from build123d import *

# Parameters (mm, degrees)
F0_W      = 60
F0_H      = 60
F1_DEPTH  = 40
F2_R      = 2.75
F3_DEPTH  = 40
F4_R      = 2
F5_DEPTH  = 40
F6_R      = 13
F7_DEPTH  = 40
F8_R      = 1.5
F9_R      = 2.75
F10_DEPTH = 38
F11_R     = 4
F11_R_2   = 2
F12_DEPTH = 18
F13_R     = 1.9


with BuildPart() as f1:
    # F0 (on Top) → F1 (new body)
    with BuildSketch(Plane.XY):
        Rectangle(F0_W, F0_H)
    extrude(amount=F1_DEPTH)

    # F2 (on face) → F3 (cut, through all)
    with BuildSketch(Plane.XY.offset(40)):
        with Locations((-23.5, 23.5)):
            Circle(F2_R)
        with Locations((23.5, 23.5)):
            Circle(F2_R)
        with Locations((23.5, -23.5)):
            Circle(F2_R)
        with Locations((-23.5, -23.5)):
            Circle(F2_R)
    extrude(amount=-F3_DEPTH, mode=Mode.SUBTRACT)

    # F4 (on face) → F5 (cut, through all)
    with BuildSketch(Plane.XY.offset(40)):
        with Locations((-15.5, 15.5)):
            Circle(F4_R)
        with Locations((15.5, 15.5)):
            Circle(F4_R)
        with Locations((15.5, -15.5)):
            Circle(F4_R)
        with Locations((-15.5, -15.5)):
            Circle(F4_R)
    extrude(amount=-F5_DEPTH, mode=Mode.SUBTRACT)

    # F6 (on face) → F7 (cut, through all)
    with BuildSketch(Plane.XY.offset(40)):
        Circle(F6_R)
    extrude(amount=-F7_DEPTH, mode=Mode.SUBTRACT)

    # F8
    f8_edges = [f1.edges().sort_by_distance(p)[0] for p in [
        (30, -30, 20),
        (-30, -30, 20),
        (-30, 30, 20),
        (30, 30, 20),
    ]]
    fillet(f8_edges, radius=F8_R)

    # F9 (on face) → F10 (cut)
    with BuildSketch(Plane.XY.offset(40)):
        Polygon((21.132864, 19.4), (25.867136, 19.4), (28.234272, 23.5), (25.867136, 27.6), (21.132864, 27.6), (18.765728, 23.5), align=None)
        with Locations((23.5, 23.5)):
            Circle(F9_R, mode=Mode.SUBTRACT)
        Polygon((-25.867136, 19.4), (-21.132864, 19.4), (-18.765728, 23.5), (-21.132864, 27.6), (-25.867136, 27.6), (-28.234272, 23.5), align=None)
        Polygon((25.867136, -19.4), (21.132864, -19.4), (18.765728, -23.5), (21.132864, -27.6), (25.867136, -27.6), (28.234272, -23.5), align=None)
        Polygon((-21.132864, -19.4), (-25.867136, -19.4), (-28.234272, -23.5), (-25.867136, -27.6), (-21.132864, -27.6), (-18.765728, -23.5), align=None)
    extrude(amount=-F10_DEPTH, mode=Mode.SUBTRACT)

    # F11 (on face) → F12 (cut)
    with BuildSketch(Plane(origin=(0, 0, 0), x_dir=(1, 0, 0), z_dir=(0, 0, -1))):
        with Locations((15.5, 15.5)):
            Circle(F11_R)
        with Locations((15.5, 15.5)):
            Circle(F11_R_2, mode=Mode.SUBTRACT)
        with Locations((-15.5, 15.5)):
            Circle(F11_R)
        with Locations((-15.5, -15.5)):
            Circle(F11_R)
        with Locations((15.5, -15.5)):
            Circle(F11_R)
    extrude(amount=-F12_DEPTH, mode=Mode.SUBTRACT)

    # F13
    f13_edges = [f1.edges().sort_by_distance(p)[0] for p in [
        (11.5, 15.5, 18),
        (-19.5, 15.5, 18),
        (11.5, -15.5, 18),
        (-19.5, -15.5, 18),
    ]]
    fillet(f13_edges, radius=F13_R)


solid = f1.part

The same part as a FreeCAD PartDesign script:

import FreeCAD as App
import Part
import Sketcher
from FreeCAD import Vector
Q = App.Units.Quantity


def edges_at(feature, points):
    """Names of the edges that pass closest to the given points."""
    edges = feature.Shape.Edges
    near = lambda p: min(range(len(edges)), key=lambda i: edges[i].distToShape(Part.Vertex(*p))[0])
    return sorted({f"Edge{near(p) + 1}" for p in points})


def add_polygon(sketch, points):
    """Adds a closed chain of lines whose ends are joined by coincident constraints."""
    first, n = sketch.GeometryCount, len(points)
    for a, b in zip(points, points[1:] + points[:1]):
        sketch.addGeometry(Part.LineSegment(App.Vector(*a, 0), App.Vector(*b, 0)), False)
    for i in range(n):
        sketch.addConstraint(Sketcher.Constraint("Coincident", first + i, 2, first + (i + 1) % n, 1))

doc = App.newDocument("Part")
params = doc.addObject("Spreadsheet::Sheet", "Params")
for row, (alias, value) in enumerate([
    ("sketch1_width", "60 mm"),
    ("pad1_length", "40 mm"),
    ("sketch2_diameter", "5.5 mm"),
    ("sketch3_diameter", "4 mm"),
    ("sketch4_diameter", "26 mm"),
    ("fillet_radius", "1.5 mm"),
    ("sketch5_diameter", "5.5 mm"),
    ("pocket4_length", "38 mm"),
    ("sketch6_diameter", "8 mm"),
    ("sketch6_diameter2", "4 mm"),
    ("pocket5_length", "18 mm"),
    ("fillet2_radius", "1.9 mm"),
], start=1):
    params.set(f"A{row}", alias)
    params.set(f"B{row}", "=" + value)
    params.setAlias(f"B{row}", alias)

body = doc.addObject("PartDesign::Body", "Body")

sketch1 = doc.addObject("Sketcher::SketchObject", "Sketch")
body.addObject(sketch1)
sketch1.AttachmentSupport = (doc.XY_Plane, [""])
sketch1.MapMode = "FlatFace"
add_polygon(sketch1, [(-30, 30), (-30, -30), (30, -30), (30, 30)])
sketch1.addConstraint(Sketcher.Constraint("Vertical", 0))
sketch1.addConstraint(Sketcher.Constraint("Horizontal", 1))
sketch1.addConstraint(Sketcher.Constraint("Vertical", 2))
sketch1.addConstraint(Sketcher.Constraint("Horizontal", 3))
sketch1.addConstraint(Sketcher.Constraint("Symmetric", 0, 2, 2, 2, -1, 1))
sketch1.addConstraint(Sketcher.Constraint("Equal", 3, 0))
sketch1.addConstraint(Sketcher.Constraint("DistanceX", 1, 1, 1, 2, 60.0))
sketch1.setExpression("Constraints[10]", "Params.sketch1_width")
pad1 = doc.addObject("PartDesign::Pad", "Pad")
body.addObject(pad1)
pad1.Profile = sketch1
pad1.setExpression("Length", "Params.pad1_length")

sketch2 = doc.addObject("Sketcher::SketchObject", "Sketch001")
body.addObject(sketch2)
sketch2.AttachmentSupport = (doc.XY_Plane, [""])
sketch2.MapMode = "FlatFace"
sketch2.AttachmentOffset = App.Placement(Vector(0, 0, 40), App.Rotation())
sketch2.addGeometry(Part.Circle(Vector(-23.5, 23.5, 0), Vector(0, 0, 1), 2.8), False)
sketch2.addGeometry(Part.Circle(Vector(23.5, 23.5, 0), Vector(0, 0, 1), 2.8), False)
sketch2.addGeometry(Part.Circle(Vector(23.5, -23.5, 0), Vector(0, 0, 1), 2.8), False)
sketch2.addGeometry(Part.Circle(Vector(-23.5, -23.5, 0), Vector(0, 0, 1), 2.8), False)
sketch2.addConstraint(Sketcher.Constraint("Equal", 0, 1))
sketch2.addConstraint(Sketcher.Constraint("Equal", 1, 2))
sketch2.addConstraint(Sketcher.Constraint("Equal", 2, 3))
sketch2.addConstraint(Sketcher.Constraint("Symmetric", 0, 3, 2, 3, -1, 1))
sketch2.addConstraint(Sketcher.Constraint("Symmetric", 1, 3, 3, 3, -1, 1))
sketch2.addConstraint(Sketcher.Constraint("Symmetric", 0, 3, 1, 3, -2))
sketch2.addConstraint(Sketcher.Constraint("Diameter", 0, 5.5))
sketch2.addConstraint(Sketcher.Constraint("DistanceX", 0, 3, 1, 3, 47.0))
sketch2.addConstraint(Sketcher.Constraint("DistanceY", 2, 3, 1, 3, 47.0))
sketch2.setExpression("Constraints[6]", "Params.sketch2_diameter")
pocket1 = doc.addObject("PartDesign::Pocket", "Pocket")
body.addObject(pocket1)
pocket1.Profile = sketch2
pocket1.Type = "ThroughAll"

sketch3 = doc.addObject("Sketcher::SketchObject", "Sketch002")
body.addObject(sketch3)
sketch3.AttachmentSupport = (doc.XY_Plane, [""])
sketch3.MapMode = "FlatFace"
sketch3.AttachmentOffset = App.Placement(Vector(0, 0, 40), App.Rotation())
sketch3.addGeometry(Part.Circle(Vector(-15.5, 15.5, 0), Vector(0, 0, 1), 2), False)
sketch3.addGeometry(Part.Circle(Vector(15.5, 15.5, 0), Vector(0, 0, 1), 2), False)
sketch3.addGeometry(Part.Circle(Vector(15.5, -15.5, 0), Vector(0, 0, 1), 2), False)
sketch3.addGeometry(Part.Circle(Vector(-15.5, -15.5, 0), Vector(0, 0, 1), 2), False)
sketch3.addConstraint(Sketcher.Constraint("Equal", 0, 1))
sketch3.addConstraint(Sketcher.Constraint("Equal", 1, 2))
sketch3.addConstraint(Sketcher.Constraint("Equal", 2, 3))
sketch3.addConstraint(Sketcher.Constraint("Symmetric", 0, 3, 2, 3, -1, 1))
sketch3.addConstraint(Sketcher.Constraint("Symmetric", 1, 3, 3, 3, -1, 1))
sketch3.addConstraint(Sketcher.Constraint("Symmetric", 0, 3, 1, 3, -2))
sketch3.addConstraint(Sketcher.Constraint("Diameter", 0, 4.0))
sketch3.addConstraint(Sketcher.Constraint("DistanceX", 0, 3, 1, 3, 31.0))
sketch3.addConstraint(Sketcher.Constraint("DistanceY", 2, 3, 1, 3, 31.0))
sketch3.setExpression("Constraints[6]", "Params.sketch3_diameter")
pocket2 = doc.addObject("PartDesign::Pocket", "Pocket001")
body.addObject(pocket2)
pocket2.Profile = sketch3
pocket2.Type = "ThroughAll"

sketch4 = doc.addObject("Sketcher::SketchObject", "Sketch003")
body.addObject(sketch4)
sketch4.AttachmentSupport = (doc.XY_Plane, [""])
sketch4.MapMode = "FlatFace"
sketch4.AttachmentOffset = App.Placement(Vector(0, 0, 40), App.Rotation())
sketch4.addGeometry(Part.Circle(Vector(0, 0, 0), Vector(0, 0, 1), 13), False)
sketch4.addConstraint(Sketcher.Constraint("Coincident", 0, 3, -1, 1))
sketch4.addConstraint(Sketcher.Constraint("Diameter", 0, 26.0))
sketch4.setExpression("Constraints[1]", "Params.sketch4_diameter")
pocket3 = doc.addObject("PartDesign::Pocket", "Pocket002")
body.addObject(pocket3)
pocket3.Profile = sketch4
pocket3.Type = "ThroughAll"
doc.recompute()

fillet = doc.addObject("PartDesign::Fillet", "Fillet")
body.addObject(fillet)
fillet.Base = (pocket3, edges_at(pocket3, [
    (30, -30, 20),
    (-30, -30, 20),
    (-30, 30, 20),
    (30, 30, 20),
]))
fillet.setExpression("Radius", "Params.fillet_radius")

sketch5 = doc.addObject("Sketcher::SketchObject", "Sketch004")
body.addObject(sketch5)
sketch5.AttachmentSupport = (doc.XY_Plane, [""])
sketch5.MapMode = "FlatFace"
sketch5.AttachmentOffset = App.Placement(Vector(0, 0, 40), App.Rotation())
add_polygon(sketch5, [(21.1, 19.4), (25.9, 19.4), (28.2, 23.5), (25.9, 27.6), (21.1, 27.6), (18.8, 23.5)])
sketch5.addGeometry(Part.Circle(Vector(23.5, 23.5, 0), Vector(0, 0, 1), 2.8), False)
add_polygon(sketch5, [(-25.9, 19.4), (-21.1, 19.4), (-18.8, 23.5), (-21.1, 27.6), (-25.9, 27.6), (-28.2, 23.5)])
add_polygon(sketch5, [(25.9, -19.4), (21.1, -19.4), (18.8, -23.5), (21.1, -27.6), (25.9, -27.6), (28.2, -23.5)])
add_polygon(sketch5, [(-21.1, -19.4), (-25.9, -19.4), (-28.2, -23.5), (-25.9, -27.6), (-21.1, -27.6), (-18.8, -23.5)])
sketch5.addConstraint(Sketcher.Constraint("Horizontal", 0))
sketch5.addConstraint(Sketcher.Constraint("Horizontal", 3))
sketch5.addConstraint(Sketcher.Constraint("Horizontal", 7))
sketch5.addConstraint(Sketcher.Constraint("Horizontal", 10))
sketch5.addConstraint(Sketcher.Constraint("Horizontal", 13))
sketch5.addConstraint(Sketcher.Constraint("Horizontal", 16))
sketch5.addConstraint(Sketcher.Constraint("Horizontal", 19))
sketch5.addConstraint(Sketcher.Constraint("Horizontal", 22))
sketch5.addConstraint(Sketcher.Constraint("Symmetric", 7, 2, 13, 2, -1, 1))
sketch5.addConstraint(Sketcher.Constraint("Symmetric", 8, 2, 14, 2, -1, 1))
sketch5.addConstraint(Sketcher.Constraint("Symmetric", 9, 2, 15, 2, -1, 1))
sketch5.addConstraint(Sketcher.Constraint("Symmetric", 11, 2, 17, 2, -1, 1))
sketch5.addConstraint(Sketcher.Constraint("Symmetric", 0, 2, 19, 2, -1, 1))
sketch5.addConstraint(Sketcher.Constraint("Symmetric", 1, 2, 20, 2, -1, 1))
sketch5.addConstraint(Sketcher.Constraint("Symmetric", 2, 2, 21, 2, -1, 1))
sketch5.addConstraint(Sketcher.Constraint("Symmetric", 4, 2, 23, 2, -1, 1))
sketch5.addConstraint(Sketcher.Constraint("Symmetric", 5, 2, 7, 2, -2))
sketch5.addConstraint(Sketcher.Constraint("Symmetric", 4, 2, 8, 2, -2))
sketch5.addConstraint(Sketcher.Constraint("Symmetric", 3, 2, 9, 2, -2))
sketch5.addConstraint(Sketcher.Constraint("Symmetric", 1, 2, 11, 2, -2))
sketch5.addConstraint(Sketcher.Constraint("Parallel", 1, 4))
sketch5.addConstraint(Sketcher.Constraint("Parallel", 2, 5))
sketch5.addConstraint(Sketcher.Constraint("Parallel", 4, 8))
sketch5.addConstraint(Sketcher.Constraint("Parallel", 8, 11))
sketch5.addConstraint(Sketcher.Constraint("Parallel", 9, 12))
sketch5.addConstraint(Sketcher.Constraint("Parallel", 14, 17))
sketch5.addConstraint(Sketcher.Constraint("Parallel", 15, 18))
sketch5.addConstraint(Sketcher.Constraint("Parallel", 20, 23))
sketch5.addConstraint(Sketcher.Constraint("Parallel", 21, 24))
sketch5.addConstraint(Sketcher.Constraint("Horizontal", 6, 3, 1, 2))
sketch5.addConstraint(Sketcher.Constraint("Horizontal", 1, 2, 4, 2))
sketch5.addConstraint(Sketcher.Constraint("Vertical", 0, 2, 2, 2))
sketch5.addConstraint(Sketcher.Constraint("Diameter", 6, 5.5))
sketch5.addConstraint(Sketcher.Constraint("Angle", 1, Q("60.000001 deg")))
sketch5.addConstraint(Sketcher.Constraint("DistanceX", 7, 2, 0, 2, 47.0))
sketch5.addConstraint(Sketcher.Constraint("DistanceY", 14, 2, 4, 2, 47.0))
sketch5.addConstraint(Sketcher.Constraint("DistanceX", -1, 1, 6, 3, 23.5))
sketch5.addConstraint(Sketcher.Constraint("DistanceY", -1, 1, 0, 2, 19.4))
sketch5.addConstraint(Sketcher.Constraint("DistanceX", 0, 1, 0, 2, 4.734272))
sketch5.setExpression("Constraints[56]", "Params.sketch5_diameter")
pocket4 = doc.addObject("PartDesign::Pocket", "Pocket003")
body.addObject(pocket4)
pocket4.Profile = sketch5
pocket4.setExpression("Length", "Params.pocket4_length")

sketch6 = doc.addObject("Sketcher::SketchObject", "Sketch005")
body.addObject(sketch6)
sketch6.AttachmentSupport = (doc.XY_Plane, [""])
sketch6.MapMode = "FlatFace"
sketch6.addGeometry(Part.Circle(Vector(15.5, -15.5, 0), Vector(0, 0, 1), 4), False)
sketch6.addGeometry(Part.Circle(Vector(15.5, -15.5, 0), Vector(0, 0, 1), 2), False)
sketch6.addGeometry(Part.Circle(Vector(-15.5, -15.5, 0), Vector(0, 0, 1), 4), False)
sketch6.addGeometry(Part.Circle(Vector(-15.5, 15.5, 0), Vector(0, 0, 1), 4), False)
sketch6.addGeometry(Part.Circle(Vector(15.5, 15.5, 0), Vector(0, 0, 1), 4), False)
sketch6.addConstraint(Sketcher.Constraint("Coincident", 1, 3, 0, 3))
sketch6.addConstraint(Sketcher.Constraint("Equal", 0, 2))
sketch6.addConstraint(Sketcher.Constraint("Equal", 2, 3))
sketch6.addConstraint(Sketcher.Constraint("Equal", 3, 4))
sketch6.addConstraint(Sketcher.Constraint("Symmetric", 0, 3, 3, 3, -1, 1))
sketch6.addConstraint(Sketcher.Constraint("Symmetric", 2, 3, 4, 3, -1, 1))
sketch6.addConstraint(Sketcher.Constraint("Symmetric", 0, 3, 2, 3, -2))
sketch6.addConstraint(Sketcher.Constraint("Diameter", 0, 8.0))
sketch6.addConstraint(Sketcher.Constraint("Diameter", 1, 4.0))
sketch6.addConstraint(Sketcher.Constraint("DistanceX", 2, 3, 0, 3, 31.0))
sketch6.addConstraint(Sketcher.Constraint("DistanceY", 2, 3, 3, 3, 31.0))
sketch6.setExpression("Constraints[7]", "Params.sketch6_diameter")
sketch6.setExpression("Constraints[8]", "Params.sketch6_diameter2")
pocket5 = doc.addObject("PartDesign::Pocket", "Pocket004")
body.addObject(pocket5)
pocket5.Profile = sketch6
pocket5.setExpression("Length", "Params.pocket5_length")
pocket5.Reversed = True
doc.recompute()

fillet2 = doc.addObject("PartDesign::Fillet", "Fillet001")
body.addObject(fillet2)
fillet2.Base = (pocket5, edges_at(pocket5, [
    (11.5, 15.5, 18),
    (-19.5, 15.5, 18),
    (11.5, -15.5, 18),
    (-19.5, -15.5, 18),
]))
fillet2.setExpression("Radius", "Params.fillet2_radius")

doc.recompute()
